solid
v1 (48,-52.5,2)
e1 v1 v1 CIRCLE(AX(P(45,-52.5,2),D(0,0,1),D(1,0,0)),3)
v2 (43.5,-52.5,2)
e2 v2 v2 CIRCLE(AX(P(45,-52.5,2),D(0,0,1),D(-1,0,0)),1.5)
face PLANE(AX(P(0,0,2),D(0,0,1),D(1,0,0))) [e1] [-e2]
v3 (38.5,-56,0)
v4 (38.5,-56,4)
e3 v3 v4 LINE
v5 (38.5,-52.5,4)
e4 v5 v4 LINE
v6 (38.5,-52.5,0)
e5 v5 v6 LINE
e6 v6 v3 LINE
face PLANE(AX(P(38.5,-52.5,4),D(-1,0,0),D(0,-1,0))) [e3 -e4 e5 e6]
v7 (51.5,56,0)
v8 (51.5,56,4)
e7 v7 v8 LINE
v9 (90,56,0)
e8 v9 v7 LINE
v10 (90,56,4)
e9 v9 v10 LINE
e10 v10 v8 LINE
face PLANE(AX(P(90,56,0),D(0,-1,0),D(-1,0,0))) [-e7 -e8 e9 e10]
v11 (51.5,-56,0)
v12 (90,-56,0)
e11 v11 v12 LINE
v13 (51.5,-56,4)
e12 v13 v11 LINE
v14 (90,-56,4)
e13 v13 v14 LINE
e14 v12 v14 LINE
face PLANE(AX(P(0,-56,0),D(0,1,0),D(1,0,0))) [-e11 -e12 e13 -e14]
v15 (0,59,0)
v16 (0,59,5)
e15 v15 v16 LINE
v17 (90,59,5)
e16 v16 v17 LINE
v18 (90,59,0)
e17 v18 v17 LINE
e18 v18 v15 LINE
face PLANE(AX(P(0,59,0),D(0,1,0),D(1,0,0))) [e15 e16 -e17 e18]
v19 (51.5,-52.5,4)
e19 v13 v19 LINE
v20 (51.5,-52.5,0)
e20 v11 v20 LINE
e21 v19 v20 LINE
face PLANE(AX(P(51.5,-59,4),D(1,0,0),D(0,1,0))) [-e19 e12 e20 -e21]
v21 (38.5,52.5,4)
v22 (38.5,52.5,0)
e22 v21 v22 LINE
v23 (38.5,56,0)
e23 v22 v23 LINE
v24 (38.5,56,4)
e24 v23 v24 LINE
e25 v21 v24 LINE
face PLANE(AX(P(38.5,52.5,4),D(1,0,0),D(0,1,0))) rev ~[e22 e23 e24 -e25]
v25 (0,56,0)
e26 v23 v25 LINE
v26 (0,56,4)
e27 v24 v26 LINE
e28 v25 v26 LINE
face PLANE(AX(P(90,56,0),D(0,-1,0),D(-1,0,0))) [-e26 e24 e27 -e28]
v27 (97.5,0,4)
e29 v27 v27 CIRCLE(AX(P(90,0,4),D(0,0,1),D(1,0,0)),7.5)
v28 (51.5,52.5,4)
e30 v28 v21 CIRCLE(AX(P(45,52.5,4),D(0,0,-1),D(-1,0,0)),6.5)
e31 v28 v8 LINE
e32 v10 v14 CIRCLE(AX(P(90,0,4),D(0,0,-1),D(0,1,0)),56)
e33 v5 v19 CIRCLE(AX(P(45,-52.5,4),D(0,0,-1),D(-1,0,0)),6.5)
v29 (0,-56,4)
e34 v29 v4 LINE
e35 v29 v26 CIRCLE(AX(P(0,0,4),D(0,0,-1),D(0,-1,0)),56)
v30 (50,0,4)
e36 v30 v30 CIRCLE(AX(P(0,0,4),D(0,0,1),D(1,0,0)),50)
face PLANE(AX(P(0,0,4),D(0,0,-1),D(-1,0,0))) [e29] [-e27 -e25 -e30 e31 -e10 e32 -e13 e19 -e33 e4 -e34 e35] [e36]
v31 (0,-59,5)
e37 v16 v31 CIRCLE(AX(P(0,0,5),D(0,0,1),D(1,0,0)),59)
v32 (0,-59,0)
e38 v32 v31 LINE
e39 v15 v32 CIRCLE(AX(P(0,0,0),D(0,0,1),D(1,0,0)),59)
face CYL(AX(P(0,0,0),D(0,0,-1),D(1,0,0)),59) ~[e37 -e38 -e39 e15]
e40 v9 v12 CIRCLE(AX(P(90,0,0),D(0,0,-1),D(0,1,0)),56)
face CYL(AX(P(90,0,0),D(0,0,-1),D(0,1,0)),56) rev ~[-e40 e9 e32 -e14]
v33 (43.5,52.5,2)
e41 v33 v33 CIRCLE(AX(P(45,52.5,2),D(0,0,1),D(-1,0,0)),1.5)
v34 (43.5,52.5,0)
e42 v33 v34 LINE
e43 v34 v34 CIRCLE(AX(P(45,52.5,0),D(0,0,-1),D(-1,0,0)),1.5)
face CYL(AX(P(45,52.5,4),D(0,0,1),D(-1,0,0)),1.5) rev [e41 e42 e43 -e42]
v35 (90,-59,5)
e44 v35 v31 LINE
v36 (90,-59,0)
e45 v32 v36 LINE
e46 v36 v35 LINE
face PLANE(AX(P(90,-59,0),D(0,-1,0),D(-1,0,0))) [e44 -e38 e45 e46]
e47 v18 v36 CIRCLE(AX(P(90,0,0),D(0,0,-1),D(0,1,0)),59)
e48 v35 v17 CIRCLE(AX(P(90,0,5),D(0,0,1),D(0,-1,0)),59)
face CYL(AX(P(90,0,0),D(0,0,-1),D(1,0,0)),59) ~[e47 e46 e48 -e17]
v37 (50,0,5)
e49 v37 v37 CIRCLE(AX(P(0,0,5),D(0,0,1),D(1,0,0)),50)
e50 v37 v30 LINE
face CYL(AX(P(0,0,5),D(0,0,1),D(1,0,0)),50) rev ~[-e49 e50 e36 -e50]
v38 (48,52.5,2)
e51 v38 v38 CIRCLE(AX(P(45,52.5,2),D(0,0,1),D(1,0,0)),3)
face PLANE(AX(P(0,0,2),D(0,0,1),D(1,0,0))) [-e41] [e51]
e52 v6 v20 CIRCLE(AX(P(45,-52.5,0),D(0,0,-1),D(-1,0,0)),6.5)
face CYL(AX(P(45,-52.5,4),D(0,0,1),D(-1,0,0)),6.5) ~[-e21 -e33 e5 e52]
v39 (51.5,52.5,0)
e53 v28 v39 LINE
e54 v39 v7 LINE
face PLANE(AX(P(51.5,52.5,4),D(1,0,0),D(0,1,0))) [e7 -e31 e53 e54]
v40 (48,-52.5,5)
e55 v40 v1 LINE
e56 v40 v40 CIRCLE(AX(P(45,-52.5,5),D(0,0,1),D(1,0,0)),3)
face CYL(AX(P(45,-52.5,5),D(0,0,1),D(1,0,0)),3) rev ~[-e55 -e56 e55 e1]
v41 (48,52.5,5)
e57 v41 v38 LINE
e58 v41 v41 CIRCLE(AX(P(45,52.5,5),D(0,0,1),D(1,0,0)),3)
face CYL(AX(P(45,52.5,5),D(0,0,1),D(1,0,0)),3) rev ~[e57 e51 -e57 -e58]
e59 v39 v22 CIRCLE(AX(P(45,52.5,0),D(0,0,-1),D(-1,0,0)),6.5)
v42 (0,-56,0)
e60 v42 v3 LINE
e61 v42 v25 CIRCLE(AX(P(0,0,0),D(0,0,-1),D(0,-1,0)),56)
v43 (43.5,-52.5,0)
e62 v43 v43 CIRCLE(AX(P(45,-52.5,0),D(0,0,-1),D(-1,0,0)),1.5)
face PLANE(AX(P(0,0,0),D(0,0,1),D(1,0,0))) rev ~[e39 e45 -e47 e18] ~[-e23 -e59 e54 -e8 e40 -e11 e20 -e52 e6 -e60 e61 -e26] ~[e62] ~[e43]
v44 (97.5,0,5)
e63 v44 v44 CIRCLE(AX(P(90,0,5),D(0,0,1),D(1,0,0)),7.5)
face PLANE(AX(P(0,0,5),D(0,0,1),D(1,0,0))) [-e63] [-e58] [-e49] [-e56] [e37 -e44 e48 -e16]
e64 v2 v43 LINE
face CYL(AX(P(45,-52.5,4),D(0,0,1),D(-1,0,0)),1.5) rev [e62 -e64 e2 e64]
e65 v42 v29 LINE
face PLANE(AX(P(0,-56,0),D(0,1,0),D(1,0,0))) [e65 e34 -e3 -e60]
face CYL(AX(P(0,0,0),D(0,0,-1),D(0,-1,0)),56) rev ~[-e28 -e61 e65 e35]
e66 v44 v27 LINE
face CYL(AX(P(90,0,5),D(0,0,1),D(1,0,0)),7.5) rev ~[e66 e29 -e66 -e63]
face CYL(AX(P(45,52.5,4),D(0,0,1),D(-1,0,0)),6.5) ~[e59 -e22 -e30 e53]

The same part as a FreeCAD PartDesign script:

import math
import FreeCAD as App
import Part
import Sketcher
from FreeCAD import Vector
Q = App.Units.Quantity

doc = App.newDocument("Part")
body = doc.addObject("PartDesign::Body", "Body")

# Sketch on XY plane
sketch1 = doc.addObject("Sketcher::SketchObject", "Sketch")
body.addObject(sketch1)
sketch1.AttachmentSupport = (doc.XY_Plane, [""])
sketch1.MapMode = "FlatFace"
sketch1.addGeometry([
    Part.ArcOfCircle(Part.Circle(Vector(0, 0, 0), Vector(0, 0, 1), 59), math.radians(90), math.radians(270)),
    Part.LineSegment(Vector(0, -59, 0), Vector(90, -59, 0)),
    Part.ArcOfCircle(Part.Circle(Vector(90, 0, 0), Vector(0, 0, 1), 59), math.radians(-90), math.radians(90)),
    Part.LineSegment(Vector(90, 59, 0), Vector(0, 59, 0)),
], False)
sketch1.addConstraint([
    Sketcher.Constraint("Tangent", 0, 2, 1, 1),
    Sketcher.Constraint("Tangent", 1, 2, 2, 1),
    Sketcher.Constraint("Tangent", 2, 2, 3, 1),
    Sketcher.Constraint("Tangent", 3, 2, 0, 1),
    Sketcher.Constraint("Horizontal", 1),
    Sketcher.Constraint("Horizontal", 3),
    Sketcher.Constraint("Coincident", 0, 3, -1, 1),
    Sketcher.Constraint("Radius", 0, Q("59 mm")),
    Sketcher.Constraint("DistanceX", 1, 1, 1, 2, Q("90 mm")),
])
pad1 = doc.addObject("PartDesign::Pad", "Pad")
body.addObject(pad1)
pad1.Profile = sketch1
pad1.Length = 5

# Sketch on XY plane
sketch2 = doc.addObject("Sketcher::SketchObject", "Sketch001")
body.addObject(sketch2)
sketch2.AttachmentSupport = (doc.XY_Plane, [""])
sketch2.MapMode = "FlatFace"
sketch2.addGeometry([
    Part.LineSegment(Vector(90, -56, 0), Vector(0, -56, 0)),
    Part.ArcOfCircle(Part.Circle(Vector(0, 0, 0), Vector(0, 0, 1), 56), math.radians(90), math.radians(270)),
    Part.LineSegment(Vector(0, 56, 0), Vector(90, 56, 0)),
    Part.ArcOfCircle(Part.Circle(Vector(90, 0, 0), Vector(0, 0, 1), 56), math.radians(-90), math.radians(90)),
], False)
sketch2.addConstraint([
    Sketcher.Constraint("Tangent", 0, 2, 1, 2),
    Sketcher.Constraint("Tangent", 1, 1, 2, 1),
    Sketcher.Constraint("Tangent", 2, 2, 3, 2),
    Sketcher.Constraint("Tangent", 3, 1, 0, 1),
    Sketcher.Constraint("Horizontal", 0),
    Sketcher.Constraint("Horizontal", 2),
    Sketcher.Constraint("Coincident", 1, 3, -1, 1),
    Sketcher.Constraint("Radius", 1, Q("56 mm")),
    Sketcher.Constraint("DistanceX", 0, 2, 0, 1, Q("90 mm")),
])
pocket1 = doc.addObject("PartDesign::Pocket", "Pocket")
body.addObject(pocket1)
pocket1.Profile = sketch2
pocket1.Length = 4
pocket1.Reversed = True

# Sketch on XY plane
sketch3 = doc.addObject("Sketcher::SketchObject", "Sketch002")
body.addObject(sketch3)
sketch3.AttachmentSupport = (doc.XY_Plane, [""])
sketch3.MapMode = "FlatFace"
sketch3.AttachmentOffset = App.Placement(Vector(0, 0, 5), App.Rotation())
sketch3.addGeometry([
    Part.Circle(Vector(90, 0, 0), Vector(0, 0, 1), 8),
    Part.Circle(Vector(0, 0, 0), Vector(0, 0, 1), 50),
], False)
sketch3.addConstraint([
    Sketcher.Constraint("Coincident", 1, 3, -1, 1),
    Sketcher.Constraint("PointOnObject", 0, 3, -1),
    Sketcher.Constraint("Diameter", 0, Q("15 mm")),
    Sketcher.Constraint("Diameter", 1, Q("100 mm")),
    Sketcher.Constraint("DistanceX", -1, 1, 0, 3, Q("90 mm")),
])
pocket2 = doc.addObject("PartDesign::Pocket", "Pocket001")
body.addObject(pocket2)
pocket2.Profile = sketch3
pocket2.Type = "ThroughAll"

# Sketch on XY plane
sketch4 = doc.addObject("Sketcher::SketchObject", "Sketch003")
body.addObject(sketch4)
sketch4.AttachmentSupport = (doc.XY_Plane, [""])
sketch4.MapMode = "FlatFace"
sketch4.AttachmentOffset = App.Placement(Vector(0, 0, 5), App.Rotation())
sketch4.addGeometry([
    Part.Circle(Vector(45, 52.5, 0), Vector(0, 0, 1), 1.5),
    Part.Circle(Vector(45, -52.5, 0), Vector(0, 0, 1), 1.5),
], False)
sketch4.addConstraint([
    Sketcher.Constraint("Equal", 0, 1),
    Sketcher.Constraint("Symmetric", 0, 3, 1, 3, -1),
    Sketcher.Constraint("Diameter", 0, Q("3 mm")),
    Sketcher.Constraint("DistanceY", 1, 3, 0, 3, Q("105 mm")),
    Sketcher.Constraint("DistanceX", -1, 1, 0, 3, Q("45 mm")),
])
pocket3 = doc.addObject("PartDesign::Pocket", "Pocket002")
body.addObject(pocket3)
pocket3.Profile = sketch4
pocket3.Type = "ThroughAll"

# Sketch on XY plane
sketch5 = doc.addObject("Sketcher::SketchObject", "Sketch004")
body.addObject(sketch5)
sketch5.AttachmentSupport = (doc.XY_Plane, [""])
sketch5.MapMode = "FlatFace"
sketch5.AttachmentOffset = App.Placement(Vector(0, 0, 4), App.Rotation())
sketch5.addGeometry([
    Part.ArcOfCircle(Part.Circle(Vector(45, 52.5, 0), Vector(0, 0, 1), 6.5), math.radians(180), math.radians(360)),  # 0
    Part.LineSegment(Vector(38.5, 52.5, 0), Vector(38.5, 59, 0)),  # 1
    Part.LineSegment(Vector(38.5, 59, 0), Vector(51.5, 59, 0)),  # 2
    Part.LineSegment(Vector(51.5, 59, 0), Vector(51.5, 52.5, 0)),  # 3
    Part.Circle(Vector(45, 52.5, 0), Vector(0, 0, 1), 1.5),  # 4
    Part.ArcOfCircle(Part.Circle(Vector(45, -52.5, 0), Vector(0, 0, 1), 6.5), math.radians(0), math.radians(180)),  # 5
    Part.LineSegment(Vector(51.5, -52.5, 0), Vector(51.5, -59, 0)),  # 6
    Part.LineSegment(Vector(51.5, -59, 0), Vector(38.5, -59, 0)),  # 7
    Part.LineSegment(Vector(38.5, -59, 0), Vector(38.5, -52.5, 0)),  # 8
    Part.Circle(Vector(45, -52.5, 0), Vector(0, 0, 1), 1.5),  # 9
], False)
sketch5.addConstraint([
    Sketcher.Constraint("Tangent", 0, 1, 1, 1),
    Sketcher.Constraint("Coincident", 1, 2, 2, 1),
    Sketcher.Constraint("Coincident", 2, 2, 3, 1),
    Sketcher.Constraint("Tangent", 3, 2, 0, 2),
    Sketcher.Constraint("Tangent", 5, 1, 6, 1),
    Sketcher.Constraint("Coincident", 6, 2, 7, 1),
    Sketcher.Constraint("Coincident", 7, 2, 8, 1),
    Sketcher.Constraint("Tangent", 8, 2, 5, 2),
    Sketcher.Constraint("Vertical", 1),
    Sketcher.Constraint("Horizontal", 2),
    Sketcher.Constraint("Vertical", 3),
    Sketcher.Constraint("Vertical", 6),
    Sketcher.Constraint("Horizontal", 7),
    Sketcher.Constraint("Vertical", 8),
    Sketcher.Constraint("Coincident", 4, 3, 0, 3),
    Sketcher.Constraint("Coincident", 9, 3, 5, 3),
    Sketcher.Constraint("Equal", 0, 5),
    Sketcher.Constraint("Equal", 4, 9),
    Sketcher.Constraint("Symmetric", 0, 3, 5, 3, -1),
    Sketcher.Constraint("Equal", 3, 6),
    Sketcher.Constraint("Radius", 0, Q("6.5 mm")),
    Sketcher.Constraint("Diameter", 4, Q("3 mm")),
    Sketcher.Constraint("DistanceY", 1, 1, 1, 2, Q("6.5 mm")),
    Sketcher.Constraint("DistanceX", -1, 1, 0, 3, Q("45 mm")),
    Sketcher.Constraint("DistanceY", -1, 1, 1, 2, Q("59 mm")),
])
pad2 = doc.addObject("PartDesign::Pad", "Pad001")
body.addObject(pad2)
pad2.Profile = sketch5
pad2.Length = 4
pad2.Reversed = True

# Sketch on XY plane
sketch6 = doc.addObject("Sketcher::SketchObject", "Sketch005")
body.addObject(sketch6)
sketch6.AttachmentSupport = (doc.XY_Plane, [""])
sketch6.MapMode = "FlatFace"
sketch6.AttachmentOffset = App.Placement(Vector(0, 0, 5), App.Rotation())
sketch6.addGeometry([
    Part.Circle(Vector(45, -52.5, 0), Vector(0, 0, 1), 3),
    Part.Circle(Vector(45, 52.5, 0), Vector(0, 0, 1), 3),
], False)
sketch6.addConstraint([
    Sketcher.Constraint("Equal", 0, 1),
    Sketcher.Constraint("Symmetric", 0, 3, 1, 3, -1),
    Sketcher.Constraint("Diameter", 0, Q("6 mm")),
    Sketcher.Constraint("DistanceX", -1, 1, 0, 3, Q("45 mm")),
    Sketcher.Constraint("DistanceY", 0, 3, 1, 3, Q("105 mm")),
])
pocket4 = doc.addObject("PartDesign::Pocket", "Pocket003")
body.addObject(pocket4)
pocket4.Profile = sketch6
pocket4.Length = 3

doc.recompute()
